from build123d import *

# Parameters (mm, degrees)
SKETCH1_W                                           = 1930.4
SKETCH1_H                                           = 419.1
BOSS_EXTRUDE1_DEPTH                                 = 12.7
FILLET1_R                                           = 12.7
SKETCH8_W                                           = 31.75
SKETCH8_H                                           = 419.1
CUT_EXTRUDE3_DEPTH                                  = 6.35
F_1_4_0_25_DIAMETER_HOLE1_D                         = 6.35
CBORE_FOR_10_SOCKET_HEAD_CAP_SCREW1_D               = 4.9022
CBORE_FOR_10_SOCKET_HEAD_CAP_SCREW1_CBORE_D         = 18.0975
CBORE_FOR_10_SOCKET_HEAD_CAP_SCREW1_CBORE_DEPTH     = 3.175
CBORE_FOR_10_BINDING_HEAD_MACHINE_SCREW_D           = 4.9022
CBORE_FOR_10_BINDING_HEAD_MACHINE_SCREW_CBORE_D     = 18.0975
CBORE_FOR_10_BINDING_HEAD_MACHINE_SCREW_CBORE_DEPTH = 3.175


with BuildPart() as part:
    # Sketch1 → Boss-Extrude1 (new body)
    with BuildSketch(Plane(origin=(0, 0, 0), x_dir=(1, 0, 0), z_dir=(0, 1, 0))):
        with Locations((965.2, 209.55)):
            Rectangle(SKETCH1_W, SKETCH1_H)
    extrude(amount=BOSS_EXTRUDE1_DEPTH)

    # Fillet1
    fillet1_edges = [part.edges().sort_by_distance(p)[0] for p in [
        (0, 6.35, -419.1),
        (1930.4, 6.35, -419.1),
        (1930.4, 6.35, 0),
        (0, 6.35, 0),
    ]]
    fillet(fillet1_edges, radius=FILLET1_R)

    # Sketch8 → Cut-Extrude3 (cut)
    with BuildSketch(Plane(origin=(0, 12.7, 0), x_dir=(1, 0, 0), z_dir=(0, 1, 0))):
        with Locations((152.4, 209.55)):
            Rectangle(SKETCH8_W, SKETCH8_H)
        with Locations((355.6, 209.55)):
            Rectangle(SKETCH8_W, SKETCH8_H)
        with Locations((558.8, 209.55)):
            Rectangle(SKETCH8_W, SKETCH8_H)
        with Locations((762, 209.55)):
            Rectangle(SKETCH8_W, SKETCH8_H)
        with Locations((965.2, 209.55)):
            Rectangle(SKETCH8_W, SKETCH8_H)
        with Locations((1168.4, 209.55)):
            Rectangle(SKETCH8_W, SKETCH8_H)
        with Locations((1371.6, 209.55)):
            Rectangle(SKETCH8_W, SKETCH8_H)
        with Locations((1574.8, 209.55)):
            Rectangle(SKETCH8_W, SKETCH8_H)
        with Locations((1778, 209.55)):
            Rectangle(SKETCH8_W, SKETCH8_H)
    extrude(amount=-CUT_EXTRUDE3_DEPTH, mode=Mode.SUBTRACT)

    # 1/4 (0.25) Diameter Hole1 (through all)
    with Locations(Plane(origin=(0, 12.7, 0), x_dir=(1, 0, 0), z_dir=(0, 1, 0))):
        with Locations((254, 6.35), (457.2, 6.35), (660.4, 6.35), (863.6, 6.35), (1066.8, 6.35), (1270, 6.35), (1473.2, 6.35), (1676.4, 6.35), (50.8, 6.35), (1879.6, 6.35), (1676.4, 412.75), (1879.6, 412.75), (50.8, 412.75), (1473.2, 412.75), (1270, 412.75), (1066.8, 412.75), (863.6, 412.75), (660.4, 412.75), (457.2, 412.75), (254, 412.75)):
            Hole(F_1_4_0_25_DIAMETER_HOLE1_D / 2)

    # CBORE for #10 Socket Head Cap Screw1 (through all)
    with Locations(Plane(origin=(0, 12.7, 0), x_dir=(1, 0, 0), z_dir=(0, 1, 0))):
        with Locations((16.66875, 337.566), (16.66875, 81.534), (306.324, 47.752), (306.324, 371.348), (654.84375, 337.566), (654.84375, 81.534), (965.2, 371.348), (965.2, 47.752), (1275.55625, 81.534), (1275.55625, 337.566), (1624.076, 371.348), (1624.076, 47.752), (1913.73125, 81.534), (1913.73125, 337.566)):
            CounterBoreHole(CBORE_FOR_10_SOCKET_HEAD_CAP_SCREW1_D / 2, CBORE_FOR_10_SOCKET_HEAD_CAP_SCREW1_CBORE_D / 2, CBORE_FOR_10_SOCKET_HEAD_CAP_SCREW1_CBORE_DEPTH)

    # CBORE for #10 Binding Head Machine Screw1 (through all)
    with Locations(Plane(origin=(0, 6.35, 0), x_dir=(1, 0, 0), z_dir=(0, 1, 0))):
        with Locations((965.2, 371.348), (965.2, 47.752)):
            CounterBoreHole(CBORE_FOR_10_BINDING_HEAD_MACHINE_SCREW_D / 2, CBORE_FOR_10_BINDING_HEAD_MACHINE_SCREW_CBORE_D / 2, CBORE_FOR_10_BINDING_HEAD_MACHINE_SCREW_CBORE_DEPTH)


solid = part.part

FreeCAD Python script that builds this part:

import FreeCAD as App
import Part
import Sketcher
Q = App.Units.Quantity


def edges_at(feature, points):
    """Names of the edges that pass closest to the given points."""
    edges = feature.Shape.Edges
    near = lambda p: min(range(len(edges)), key=lambda i: edges[i].distToShape(Part.Vertex(*p))[0])
    return sorted({f"Edge{near(p) + 1}" for p in points})

doc = App.newDocument("Part")
body = doc.addObject("PartDesign::Body", "Body")

sketch1 = body.newObject("Sketcher::SketchObject", "Sketch")
sketch1.AttachmentSupport = (doc.getObject("XZ_Plane"), [""])
sketch1.MapMode = "FlatFace"
sketch1.addGeometry([
    Part.LineSegment(App.Vector(0, -419, 0), App.Vector(0, 0, 0)),
    Part.LineSegment(App.Vector(0, 0, 0), App.Vector(1930, 0, 0)),
    Part.LineSegment(App.Vector(1930, 0, 0), App.Vector(1930, -419, 0)),
    Part.LineSegment(App.Vector(1930, -419, 0), App.Vector(0, -419, 0)),
], False)
sketch1.addConstraint([
    Sketcher.Constraint("Coincident", 0, 2, 1, 1),
    Sketcher.Constraint("Coincident", 1, 2, 2, 1),
    Sketcher.Constraint("Coincident", 2, 2, 3, 1),
    Sketcher.Constraint("Coincident", 3, 2, 0, 1),
    Sketcher.Constraint("Vertical", 0),
    Sketcher.Constraint("Horizontal", 1),
    Sketcher.Constraint("Vertical", 2),
    Sketcher.Constraint("Horizontal", 3),
    Sketcher.Constraint("Coincident", 0, 2, -1, 1),
    Sketcher.Constraint("DistanceX", 1, 1, 1, 2, Q("76 in")),
    Sketcher.Constraint("DistanceY", 0, 1, 0, 2, Q("16.5 in")),
])
pad1 = body.newObject("PartDesign::Pad", "Pad")
pad1.Profile = sketch1
pad1.Length = Q("0.5 in")
pad1.Reversed = True
doc.recompute()

fillet = body.newObject("PartDesign::Fillet", "Fillet")
fillet.Base = (pad1, edges_at(pad1, [
    (0, 6.35, -419.1),
    (1930.4, 6.35, -419.1),
    (1930.4, 6.35, 0),
    (0, 6.35, 0),
]))
fillet.Radius = Q("0.5 in")

sketch2 = body.newObject("Sketcher::SketchObject", "Sketch001")
sketch2.AttachmentSupport = (doc.getObject("XZ_Plane"), [""])
sketch2.MapMode = "FlatFace"
sketch2.AttachmentOffset = App.Placement(App.Vector(0, 0, -0.5 * 25.4), App.Rotation())
sketch2.addGeometry([
    Part.LineSegment(App.Vector(137, -419, 0), App.Vector(137, 0, 0)),
    Part.LineSegment(App.Vector(137, 0, 0), App.Vector(168, 0, 0)),
    Part.LineSegment(App.Vector(168, 0, 0), App.Vector(168, -419, 0)),
    Part.LineSegment(App.Vector(168, -419, 0), App.Vector(137, -419, 0)),
    Part.LineSegment(App.Vector(340, -419, 0), App.Vector(340, 0, 0)),
    Part.LineSegment(App.Vector(340, 0, 0), App.Vector(371, 0, 0)),
    Part.LineSegment(App.Vector(371, 0, 0), App.Vector(371, -419, 0)),
    Part.LineSegment(App.Vector(371, -419, 0), App.Vector(340, -419, 0)),
    Part.LineSegment(App.Vector(543, -419, 0), App.Vector(543, 0, 0)),
    Part.LineSegment(App.Vector(543, 0, 0), App.Vector(575, 0, 0)),
    Part.LineSegment(App.Vector(575, 0, 0), App.Vector(575, -419, 0)),
    Part.LineSegment(App.Vector(575, -419, 0), App.Vector(543, -419, 0)),
    Part.LineSegment(App.Vector(746, -419, 0), App.Vector(746, 0, 0)),
    Part.LineSegment(App.Vector(746, 0, 0), App.Vector(778, 0, 0)),
    Part.LineSegment(App.Vector(778, 0, 0), App.Vector(778, -419, 0)),
    Part.LineSegment(App.Vector(778, -419, 0), App.Vector(746, -419, 0)),
    Part.LineSegment(App.Vector(949, -419, 0), App.Vector(949, 0, 0)),
    Part.LineSegment(App.Vector(949, 0, 0), App.Vector(981, 0, 0)),
    Part.LineSegment(App.Vector(981, 0, 0), App.Vector(981, -419, 0)),
    Part.LineSegment(App.Vector(981, -419, 0), App.Vector(949, -419, 0)),
    Part.LineSegment(App.Vector(1153, -419, 0), App.Vector(1153, 0, 0)),
    Part.LineSegment(App.Vector(1153, 0, 0), App.Vector(1184, 0, 0)),
    Part.LineSegment(App.Vector(1184, 0, 0), App.Vector(1184, -419, 0)),
    Part.LineSegment(App.Vector(1184, -419, 0), App.Vector(1153, -419, 0)),
    Part.LineSegment(App.Vector(1356, -419, 0), App.Vector(1356, 0, 0)),
    Part.LineSegment(App.Vector(1356, 0, 0), App.Vector(1387, 0, 0)),
    Part.LineSegment(App.Vector(1387, 0, 0), App.Vector(1387, -419, 0)),
    Part.LineSegment(App.Vector(1387, -419, 0), App.Vector(1356, -419, 0)),
    Part.LineSegment(App.Vector(1559, -419, 0), App.Vector(1559, 0, 0)),
    Part.LineSegment(App.Vector(1559, 0, 0), App.Vector(1591, 0, 0)),
    Part.LineSegment(App.Vector(1591, 0, 0), App.Vector(1591, -419, 0)),
    Part.LineSegment(App.Vector(1591, -419, 0), App.Vector(1559, -419, 0)),
    Part.LineSegment(App.Vector(1762, -419, 0), App.Vector(1762, 0, 0)),
    Part.LineSegment(App.Vector(1762, 0, 0), App.Vector(1794, 0, 0)),
    Part.LineSegment(App.Vector(1794, 0, 0), App.Vector(1794, -419, 0)),
    Part.LineSegment(App.Vector(1794, -419, 0), App.Vector(1762, -419, 0)),
], False)
sketch2.addConstraint([
    Sketcher.Constraint("Coincident", 0, 2, 1, 1),
    Sketcher.Constraint("Coincident", 1, 2, 2, 1),
    Sketcher.Constraint("Coincident", 2, 2, 3, 1),
    Sketcher.Constraint("Coincident", 3, 2, 0, 1),
    Sketcher.Constraint("Coincident", 4, 2, 5, 1),
    Sketcher.Constraint("Coincident", 5, 2, 6, 1),
    Sketcher.Constraint("Coincident", 6, 2, 7, 1),
    Sketcher.Constraint("Coincident", 7, 2, 4, 1),
    Sketcher.Constraint("Coincident", 8, 2, 9, 1),
    Sketcher.Constraint("Coincident", 9, 2, 10, 1),
    Sketcher.Constraint("Coincident", 10, 2, 11, 1),
    Sketcher.Constraint("Coincident", 11, 2, 8, 1),
    Sketcher.Constraint("Coincident", 12, 2, 13, 1),
    Sketcher.Constraint("Coincident", 13, 2, 14, 1),
    Sketcher.Constraint("Coincident", 14, 2, 15, 1),
    Sketcher.Constraint("Coincident", 15, 2, 12, 1),
    Sketcher.Constraint("Coincident", 16, 2, 17, 1),
    Sketcher.Constraint("Coincident", 17, 2, 18, 1),
    Sketcher.Constraint("Coincident", 18, 2, 19, 1),
    Sketcher.Constraint("Coincident", 19, 2, 16, 1),
    Sketcher.Constraint("Coincident", 20, 2, 21, 1),
    Sketcher.Constraint("Coincident", 21, 2, 22, 1),
    Sketcher.Constraint("Coincident", 22, 2, 23, 1),
    Sketcher.Constraint("Coincident", 23, 2, 20, 1),
    Sketcher.Constraint("Coincident", 24, 2, 25, 1),
    Sketcher.Constraint("Coincident", 25, 2, 26, 1),
    Sketcher.Constraint("Coincident", 26, 2, 27, 1),
    Sketcher.Constraint("Coincident", 27, 2, 24, 1),
    Sketcher.Constraint("Coincident", 28, 2, 29, 1),
    Sketcher.Constraint("Coincident", 29, 2, 30, 1),
    Sketcher.Constraint("Coincident", 30, 2, 31, 1),
    Sketcher.Constraint("Coincident", 31, 2, 28, 1),
    Sketcher.Constraint("Coincident", 32, 2, 33, 1),
    Sketcher.Constraint("Coincident", 33, 2, 34, 1),
    Sketcher.Constraint("Coincident", 34, 2, 35, 1),
    Sketcher.Constraint("Coincident", 35, 2, 32, 1),
    Sketcher.Constraint("Vertical", 0),
    Sketcher.Constraint("Horizontal", 1),
    Sketcher.Constraint("Vertical", 2),
    Sketcher.Constraint("Horizontal", 3),
    Sketcher.Constraint("Vertical", 4),
    Sketcher.Constraint("Horizontal", 5),
    Sketcher.Constraint("Vertical", 6),
    Sketcher.Constraint("Horizontal", 7),
    Sketcher.Constraint("Vertical", 8),
    Sketcher.Constraint("Horizontal", 9),
    Sketcher.Constraint("Vertical", 10),
    Sketcher.Constraint("Horizontal", 11),
    Sketcher.Constraint("Vertical", 12),
    Sketcher.Constraint("Horizontal", 13),
    Sketcher.Constraint("Vertical", 14),
    Sketcher.Constraint("Horizontal", 15),
    Sketcher.Constraint("Vertical", 16),
    Sketcher.Constraint("Horizontal", 17),
    Sketcher.Constraint("Vertical", 18),
    Sketcher.Constraint("Horizontal", 19),
    Sketcher.Constraint("Vertical", 20),
    Sketcher.Constraint("Horizontal", 21),
    Sketcher.Constraint("Vertical", 22),
    Sketcher.Constraint("Horizontal", 23),
    Sketcher.Constraint("Vertical", 24),
    Sketcher.Constraint("Horizontal", 25),
    Sketcher.Constraint("Vertical", 26),
    Sketcher.Constraint("Horizontal", 27),
    Sketcher.Constraint("Vertical", 28),
    Sketcher.Constraint("Horizontal", 29),
    Sketcher.Constraint("Vertical", 30),
    Sketcher.Constraint("Horizontal", 31),
    Sketcher.Constraint("Vertical", 32),
    Sketcher.Constraint("Horizontal", 33),
    Sketcher.Constraint("Vertical", 34),
    Sketcher.Constraint("Horizontal", 35),
    Sketcher.Constraint("PointOnObject", 0, 2, -1),
    Sketcher.Constraint("PointOnObject", 4, 2, -1),
    Sketcher.Constraint("PointOnObject", 8, 2, -1),
    Sketcher.Constraint("PointOnObject", 12, 2, -1),
    Sketcher.Constraint("PointOnObject", 16, 2, -1),
    Sketcher.Constraint("PointOnObject", 20, 2, -1),
    Sketcher.Constraint("PointOnObject", 24, 2, -1),
    Sketcher.Constraint("PointOnObject", 28, 2, -1),
    Sketcher.Constraint("PointOnObject", 32, 2, -1),
    Sketcher.Constraint("Horizontal", 3, 2, 6, 2),
    Sketcher.Constraint("Horizontal", 7, 2, 10, 2),
    Sketcher.Constraint("Horizontal", 11, 2, 14, 2),
    Sketcher.Constraint("Horizontal", 15, 2, 18, 2),
    Sketcher.Constraint("Horizontal", 19, 2, 22, 2),
    Sketcher.Constraint("Horizontal", 23, 2, 26, 2),
    Sketcher.Constraint("Horizontal", 27, 2, 30, 2),
    Sketcher.Constraint("Horizontal", 31, 2, 34, 2),
    Sketcher.Constraint("Equal", 3, 5),
    Sketcher.Constraint("Equal", 7, 9),
    Sketcher.Constraint("Equal", 11, 13),
    Sketcher.Constraint("Equal", 15, 17),
    Sketcher.Constraint("Equal", 19, 21),
    Sketcher.Constraint("Equal", 23, 25),
    Sketcher.Constraint("Equal", 27, 29),
    Sketcher.Constraint("Equal", 31, 33),
    Sketcher.Constraint("DistanceY", 0, 1, 0, 2, Q("16.5 in")),
    Sketcher.Constraint("DistanceX", 0, 2, 4, 2, Q("8 in")),
    Sketcher.Constraint("DistanceX", 4, 2, 8, 2, Q("8 in")),
    Sketcher.Constraint("DistanceX", 8, 2, 12, 2, Q("8 in")),
    Sketcher.Constraint("DistanceX", 12, 2, 16, 2, Q("8 in")),
    Sketcher.Constraint("DistanceX", 16, 2, 20, 2, Q("8 in")),
    Sketcher.Constraint("DistanceX", 20, 2, 24, 2, Q("8 in")),
    Sketcher.Constraint("DistanceX", 24, 2, 28, 2, Q("8 in")),
    Sketcher.Constraint("DistanceX", 28, 2, 32, 2, Q("8 in")),
    Sketcher.Constraint("DistanceX", 1, 1, 1, 2, Q("1.25 in")),
    Sketcher.Constraint("DistanceX", -1, 1, 0, 2, Q("5.375 in")),
])
pocket1 = body.newObject("PartDesign::Pocket", "Pocket")
pocket1.Profile = sketch2
pocket1.Length = Q("0.25 in")
pocket1.Reversed = True

sketch3 = body.newObject("Sketcher::SketchObject", "Sketch002")
sketch3.AttachmentSupport = (doc.getObject("XZ_Plane"), [""])
sketch3.MapMode = "FlatFace"
sketch3.AttachmentOffset = App.Placement(App.Vector(0, 0, -0.5 * 25.4), App.Rotation())
sketch3.addGeometry([
    Part.Circle(App.Vector(254, -6.3, 0), App.Vector(0, 0, 1), 3.2),
    Part.Circle(App.Vector(457.2, -6.3, 0), App.Vector(0, 0, 1), 3.2),
    Part.Circle(App.Vector(660.4, -6.3, 0), App.Vector(0, 0, 1), 3.2),
    Part.Circle(App.Vector(863.6, -6.3, 0), App.Vector(0, 0, 1), 3.2),
    Part.Circle(App.Vector(1066.8, -6.3, 0), App.Vector(0, 0, 1), 3.2),
    Part.Circle(App.Vector(1270, -6.3, 0), App.Vector(0, 0, 1), 3.2),
    Part.Circle(App.Vector(1473.2, -6.3, 0), App.Vector(0, 0, 1), 3.2),
    Part.Circle(App.Vector(1676.4, -6.3, 0), App.Vector(0, 0, 1), 3.2),
    Part.Circle(App.Vector(50.8, -6.3, 0), App.Vector(0, 0, 1), 3.2),
    Part.Circle(App.Vector(1879.6, -6.3, 0), App.Vector(0, 0, 1), 3.2),
    Part.Circle(App.Vector(1676.4, -412.8, 0), App.Vector(0, 0, 1), 3.2),
    Part.Circle(App.Vector(1879.6, -412.8, 0), App.Vector(0, 0, 1), 3.2),
    Part.Circle(App.Vector(50.8, -412.8, 0), App.Vector(0, 0, 1), 3.2),
    Part.Circle(App.Vector(1473.2, -412.8, 0), App.Vector(0, 0, 1), 3.2),
    Part.Circle(App.Vector(1270, -412.8, 0), App.Vector(0, 0, 1), 3.2),
    Part.Circle(App.Vector(1066.8, -412.8, 0), App.Vector(0, 0, 1), 3.2),
    Part.Circle(App.Vector(863.6, -412.8, 0), App.Vector(0, 0, 1), 3.2),
    Part.Circle(App.Vector(660.4, -412.8, 0), App.Vector(0, 0, 1), 3.2),
    Part.Circle(App.Vector(457.2, -412.8, 0), App.Vector(0, 0, 1), 3.2),
    Part.Circle(App.Vector(254, -412.8, 0), App.Vector(0, 0, 1), 3.2),
], False)
sketch3.addConstraint([
    Sketcher.Constraint("Equal", 0, 1),
    Sketcher.Constraint("Equal", 1, 2),
    Sketcher.Constraint("Equal", 2, 3),
    Sketcher.Constraint("Equal", 3, 4),
    Sketcher.Constraint("Equal", 4, 5),
    Sketcher.Constraint("Equal", 5, 6),
    Sketcher.Constraint("Equal", 6, 7),
    Sketcher.Constraint("Equal", 7, 8),
    Sketcher.Constraint("Equal", 8, 9),
    Sketcher.Constraint("Equal", 9, 10),
    Sketcher.Constraint("Equal", 10, 11),
    Sketcher.Constraint("Equal", 11, 12),
    Sketcher.Constraint("Equal", 12, 13),
    Sketcher.Constraint("Equal", 13, 14),
    Sketcher.Constraint("Equal", 14, 15),
    Sketcher.Constraint("Equal", 15, 16),
    Sketcher.Constraint("Equal", 16, 17),
    Sketcher.Constraint("Equal", 17, 18),
    Sketcher.Constraint("Equal", 18, 19),
    Sketcher.Constraint("Horizontal", 0, 3, 1, 3),
    Sketcher.Constraint("Horizontal", 1, 3, 2, 3),
    Sketcher.Constraint("Horizontal", 2, 3, 3, 3),
    Sketcher.Constraint("Horizontal", 3, 3, 4, 3),
    Sketcher.Constraint("Horizontal", 4, 3, 5, 3),
    Sketcher.Constraint("Horizontal", 5, 3, 6, 3),
    Sketcher.Constraint("Horizontal", 6, 3, 7, 3),
    Sketcher.Constraint("Horizontal", 7, 3, 8, 3),
    Sketcher.Constraint("Horizontal", 8, 3, 9, 3),
    Sketcher.Constraint("Horizontal", 10, 3, 11, 3),
    Sketcher.Constraint("Horizontal", 11, 3, 12, 3),
    Sketcher.Constraint("Horizontal", 12, 3, 13, 3),
    Sketcher.Constraint("Horizontal", 13, 3, 14, 3),
    Sketcher.Constraint("Horizontal", 14, 3, 15, 3),
    Sketcher.Constraint("Horizontal", 15, 3, 16, 3),
    Sketcher.Constraint("Horizontal", 16, 3, 17, 3),
    Sketcher.Constraint("Horizontal", 17, 3, 18, 3),
    Sketcher.Constraint("Horizontal", 18, 3, 19, 3),
    Sketcher.Constraint("Vertical", 7, 3, 10, 3),
    Sketcher.Constraint("Vertical", 9, 3, 11, 3),
    Sketcher.Constraint("Vertical", 8, 3, 12, 3),
    Sketcher.Constraint("Vertical", 6, 3, 13, 3),
    Sketcher.Constraint("Vertical", 5, 3, 14, 3),
    Sketcher.Constraint("Vertical", 4, 3, 15, 3),
    Sketcher.Constraint("Vertical", 3, 3, 16, 3),
    Sketcher.Constraint("Vertical", 2, 3, 17, 3),
    Sketcher.Constraint("Vertical", 1, 3, 18, 3),
    Sketcher.Constraint("Vertical", 0, 3, 19, 3),
    Sketcher.Constraint("Diameter", 0, Q("0.25 in")),
    Sketcher.Constraint("DistanceX", -1, 1, 0, 3, Q("10 in")),
    Sketcher.Constraint("DistanceX", -1, 1, 1, 3, Q("18 in")),
    Sketcher.Constraint("DistanceX", -1, 1, 2, 3, Q("26 in")),
    Sketcher.Constraint("DistanceX", -1, 1, 3, 3, Q("34 in")),
    Sketcher.Constraint("DistanceX", -1, 1, 4, 3, Q("42 in")),
    Sketcher.Constraint("DistanceX", -1, 1, 5, 3, Q("50 in")),
    Sketcher.Constraint("DistanceX", -1, 1, 6, 3, Q("58 in")),
    Sketcher.Constraint("DistanceX", -1, 1, 7, 3, Q("66 in")),
    Sketcher.Constraint("DistanceX", -1, 1, 8, 3, Q("2 in")),
    Sketcher.Constraint("DistanceX", -1, 1, 9, 3, Q("74 in")),
    Sketcher.Constraint("DistanceY", 10, 3, 7, 3, Q("16 in")),
    Sketcher.Constraint("DistanceY", 0, 3, -1, 1, Q("0.25 in")),
])
doc.recompute()
hole = body.newObject("PartDesign::Hole", "Hole")
hole.Profile = sketch3
hole.ThreadType = "None"
hole.Diameter = Q("0.25 in")
hole.DepthType = "ThroughAll"
hole.Reversed = True

sketch4 = body.newObject("Sketcher::SketchObject", "Sketch003")
sketch4.AttachmentSupport = (doc.getObject("XZ_Plane"), [""])
sketch4.MapMode = "FlatFace"
sketch4.AttachmentOffset = App.Placement(App.Vector(0, 0, -0.5 * 25.4), App.Rotation())
sketch4.addGeometry([
    Part.Circle(App.Vector(16.7, -337.6, 0), App.Vector(0, 0, 1), 2.5),
    Part.Circle(App.Vector(16.7, -81.5, 0), App.Vector(0, 0, 1), 2.5),
    Part.Circle(App.Vector(306.3, -47.8, 0), App.Vector(0, 0, 1), 2.5),
    Part.Circle(App.Vector(306.3, -371.3, 0), App.Vector(0, 0, 1), 2.5),
    Part.Circle(App.Vector(654.8, -337.6, 0), App.Vector(0, 0, 1), 2.5),
    Part.Circle(App.Vector(654.8, -81.5, 0), App.Vector(0, 0, 1), 2.5),
    Part.Circle(App.Vector(965.2, -371.3, 0), App.Vector(0, 0, 1), 2.5),
    Part.Circle(App.Vector(965.2, -47.8, 0), App.Vector(0, 0, 1), 2.5),
    Part.Circle(App.Vector(1275.6, -81.5, 0), App.Vector(0, 0, 1), 2.5),
    Part.Circle(App.Vector(1275.6, -337.6, 0), App.Vector(0, 0, 1), 2.5),
    Part.Circle(App.Vector(1624.1, -371.3, 0), App.Vector(0, 0, 1), 2.5),
    Part.Circle(App.Vector(1624.1, -47.8, 0), App.Vector(0, 0, 1), 2.5),
    Part.Circle(App.Vector(1913.7, -81.5, 0), App.Vector(0, 0, 1), 2.5),
    Part.Circle(App.Vector(1913.7, -337.6, 0), App.Vector(0, 0, 1), 2.5),
], False)
sketch4.addConstraint([
    Sketcher.Constraint("Equal", 0, 1),
    Sketcher.Constraint("Equal", 1, 2),
    Sketcher.Constraint("Equal", 2, 3),
    Sketcher.Constraint("Equal", 3, 4),
    Sketcher.Constraint("Equal", 4, 5),
    Sketcher.Constraint("Equal", 5, 6),
    Sketcher.Constraint("Equal", 6, 7),
    Sketcher.Constraint("Equal", 7, 8),
    Sketcher.Constraint("Equal", 8, 9),
    Sketcher.Constraint("Equal", 9, 10),
    Sketcher.Constraint("Equal", 10, 11),
    Sketcher.Constraint("Equal", 11, 12),
    Sketcher.Constraint("Equal", 12, 13),
    Sketcher.Constraint("Horizontal", 0, 3, 4, 3),
    Sketcher.Constraint("Horizontal", 1, 3, 5, 3),
    Sketcher.Constraint("Horizontal", 3, 3, 6, 3),
    Sketcher.Constraint("Horizontal", 2, 3, 7, 3),
    Sketcher.Constraint("Horizontal", 5, 3, 8, 3),
    Sketcher.Constraint("Horizontal", 4, 3, 9, 3),
    Sketcher.Constraint("Horizontal", 6, 3, 10, 3),
    Sketcher.Constraint("Horizontal", 7, 3, 11, 3),
    Sketcher.Constraint("Horizontal", 8, 3, 12, 3),
    Sketcher.Constraint("Horizontal", 9, 3, 13, 3),
    Sketcher.Constraint("Vertical", 0, 3, 1, 3),
    Sketcher.Constraint("Vertical", 2, 3, 3, 3),
    Sketcher.Constraint("Vertical", 4, 3, 5, 3),
    Sketcher.Constraint("Vertical", 6, 3, 7, 3),
    Sketcher.Constraint("Vertical", 8, 3, 9, 3),
    Sketcher.Constraint("Vertical", 10, 3, 11, 3),
    Sketcher.Constraint("Vertical", 12, 3, 13, 3),
    Sketcher.Constraint("Diameter", 0, Q("0.193 in")),
    Sketcher.Constraint("DistanceX", -1, 1, 6, 3, Q("38 in")),
    Sketcher.Constraint("DistanceY", 0, 3, -1, 1, Q("13.29 in")),
    Sketcher.Constraint("DistanceY", 1, 3, -1, 1, Q("3.21 in")),
    Sketcher.Constraint("DistanceX", -1, 1, 2, 3, Q("12.06 in")),
    Sketcher.Constraint("DistanceY", 2, 3, -1, 1, Q("1.88 in")),
    Sketcher.Constraint("DistanceY", 3, 3, -1, 1, Q("14.62 in")),
    Sketcher.Constraint("DistanceX", -1, 1, 10, 3, Q("63.94 in")),
    Sketcher.Constraint("DistanceX", -1, 1, 0, 3, Q("0.65625 in")),
    Sketcher.Constraint("DistanceX", -1, 1, 4, 3, Q("25.78125 in")),
    Sketcher.Constraint("DistanceX", -1, 1, 8, 3, Q("50.21875 in")),
    Sketcher.Constraint("DistanceX", -1, 1, 12, 3, Q("75.34375 in")),
])
doc.recompute()
hole2 = body.newObject("PartDesign::Hole", "Hole001")
hole2.Profile = sketch4
hole2.ThreadType = "None"
hole2.Diameter = Q("0.193 in")
hole2.DepthType = "ThroughAll"
hole2.HoleCutType = "Counterbore"
hole2.HoleCutDiameter = Q("0.7125 in")
hole2.HoleCutDepth = Q("0.125 in")
hole2.Reversed = True

sketch5 = body.newObject("Sketcher::SketchObject", "Sketch004")
sketch5.AttachmentSupport = (doc.getObject("XZ_Plane"), [""])
sketch5.MapMode = "FlatFace"
sketch5.AttachmentOffset = App.Placement(App.Vector(0, 0, -0.25 * 25.4), App.Rotation())
sketch5.addGeometry([
    Part.Circle(App.Vector(965.2, -371.3, 0), App.Vector(0, 0, 1), 2.5),
    Part.Circle(App.Vector(965.2, -47.8, 0), App.Vector(0, 0, 1), 2.5),
], False)
sketch5.addConstraint([
    Sketcher.Constraint("Equal", 0, 1),
    Sketcher.Constraint("Vertical", 0, 3, 1, 3),
    Sketcher.Constraint("Diameter", 0, Q("0.193 in")),
    Sketcher.Constraint("DistanceX", -1, 1, 0, 3, Q("38 in")),
    Sketcher.Constraint("DistanceY", 0, 3, -1, 1, Q("14.62 in")),
    Sketcher.Constraint("DistanceY", 1, 3, -1, 1, Q("1.88 in")),
])
doc.recompute()
hole3 = body.newObject("PartDesign::Hole", "Hole002")
hole3.Profile = sketch5
hole3.ThreadType = "None"
hole3.Diameter = Q("0.193 in")
hole3.DepthType = "ThroughAll"
hole3.HoleCutType = "Counterbore"
hole3.HoleCutDiameter = Q("0.7125 in")
hole3.HoleCutDepth = Q("0.125 in")
hole3.Reversed = True

doc.recompute()
